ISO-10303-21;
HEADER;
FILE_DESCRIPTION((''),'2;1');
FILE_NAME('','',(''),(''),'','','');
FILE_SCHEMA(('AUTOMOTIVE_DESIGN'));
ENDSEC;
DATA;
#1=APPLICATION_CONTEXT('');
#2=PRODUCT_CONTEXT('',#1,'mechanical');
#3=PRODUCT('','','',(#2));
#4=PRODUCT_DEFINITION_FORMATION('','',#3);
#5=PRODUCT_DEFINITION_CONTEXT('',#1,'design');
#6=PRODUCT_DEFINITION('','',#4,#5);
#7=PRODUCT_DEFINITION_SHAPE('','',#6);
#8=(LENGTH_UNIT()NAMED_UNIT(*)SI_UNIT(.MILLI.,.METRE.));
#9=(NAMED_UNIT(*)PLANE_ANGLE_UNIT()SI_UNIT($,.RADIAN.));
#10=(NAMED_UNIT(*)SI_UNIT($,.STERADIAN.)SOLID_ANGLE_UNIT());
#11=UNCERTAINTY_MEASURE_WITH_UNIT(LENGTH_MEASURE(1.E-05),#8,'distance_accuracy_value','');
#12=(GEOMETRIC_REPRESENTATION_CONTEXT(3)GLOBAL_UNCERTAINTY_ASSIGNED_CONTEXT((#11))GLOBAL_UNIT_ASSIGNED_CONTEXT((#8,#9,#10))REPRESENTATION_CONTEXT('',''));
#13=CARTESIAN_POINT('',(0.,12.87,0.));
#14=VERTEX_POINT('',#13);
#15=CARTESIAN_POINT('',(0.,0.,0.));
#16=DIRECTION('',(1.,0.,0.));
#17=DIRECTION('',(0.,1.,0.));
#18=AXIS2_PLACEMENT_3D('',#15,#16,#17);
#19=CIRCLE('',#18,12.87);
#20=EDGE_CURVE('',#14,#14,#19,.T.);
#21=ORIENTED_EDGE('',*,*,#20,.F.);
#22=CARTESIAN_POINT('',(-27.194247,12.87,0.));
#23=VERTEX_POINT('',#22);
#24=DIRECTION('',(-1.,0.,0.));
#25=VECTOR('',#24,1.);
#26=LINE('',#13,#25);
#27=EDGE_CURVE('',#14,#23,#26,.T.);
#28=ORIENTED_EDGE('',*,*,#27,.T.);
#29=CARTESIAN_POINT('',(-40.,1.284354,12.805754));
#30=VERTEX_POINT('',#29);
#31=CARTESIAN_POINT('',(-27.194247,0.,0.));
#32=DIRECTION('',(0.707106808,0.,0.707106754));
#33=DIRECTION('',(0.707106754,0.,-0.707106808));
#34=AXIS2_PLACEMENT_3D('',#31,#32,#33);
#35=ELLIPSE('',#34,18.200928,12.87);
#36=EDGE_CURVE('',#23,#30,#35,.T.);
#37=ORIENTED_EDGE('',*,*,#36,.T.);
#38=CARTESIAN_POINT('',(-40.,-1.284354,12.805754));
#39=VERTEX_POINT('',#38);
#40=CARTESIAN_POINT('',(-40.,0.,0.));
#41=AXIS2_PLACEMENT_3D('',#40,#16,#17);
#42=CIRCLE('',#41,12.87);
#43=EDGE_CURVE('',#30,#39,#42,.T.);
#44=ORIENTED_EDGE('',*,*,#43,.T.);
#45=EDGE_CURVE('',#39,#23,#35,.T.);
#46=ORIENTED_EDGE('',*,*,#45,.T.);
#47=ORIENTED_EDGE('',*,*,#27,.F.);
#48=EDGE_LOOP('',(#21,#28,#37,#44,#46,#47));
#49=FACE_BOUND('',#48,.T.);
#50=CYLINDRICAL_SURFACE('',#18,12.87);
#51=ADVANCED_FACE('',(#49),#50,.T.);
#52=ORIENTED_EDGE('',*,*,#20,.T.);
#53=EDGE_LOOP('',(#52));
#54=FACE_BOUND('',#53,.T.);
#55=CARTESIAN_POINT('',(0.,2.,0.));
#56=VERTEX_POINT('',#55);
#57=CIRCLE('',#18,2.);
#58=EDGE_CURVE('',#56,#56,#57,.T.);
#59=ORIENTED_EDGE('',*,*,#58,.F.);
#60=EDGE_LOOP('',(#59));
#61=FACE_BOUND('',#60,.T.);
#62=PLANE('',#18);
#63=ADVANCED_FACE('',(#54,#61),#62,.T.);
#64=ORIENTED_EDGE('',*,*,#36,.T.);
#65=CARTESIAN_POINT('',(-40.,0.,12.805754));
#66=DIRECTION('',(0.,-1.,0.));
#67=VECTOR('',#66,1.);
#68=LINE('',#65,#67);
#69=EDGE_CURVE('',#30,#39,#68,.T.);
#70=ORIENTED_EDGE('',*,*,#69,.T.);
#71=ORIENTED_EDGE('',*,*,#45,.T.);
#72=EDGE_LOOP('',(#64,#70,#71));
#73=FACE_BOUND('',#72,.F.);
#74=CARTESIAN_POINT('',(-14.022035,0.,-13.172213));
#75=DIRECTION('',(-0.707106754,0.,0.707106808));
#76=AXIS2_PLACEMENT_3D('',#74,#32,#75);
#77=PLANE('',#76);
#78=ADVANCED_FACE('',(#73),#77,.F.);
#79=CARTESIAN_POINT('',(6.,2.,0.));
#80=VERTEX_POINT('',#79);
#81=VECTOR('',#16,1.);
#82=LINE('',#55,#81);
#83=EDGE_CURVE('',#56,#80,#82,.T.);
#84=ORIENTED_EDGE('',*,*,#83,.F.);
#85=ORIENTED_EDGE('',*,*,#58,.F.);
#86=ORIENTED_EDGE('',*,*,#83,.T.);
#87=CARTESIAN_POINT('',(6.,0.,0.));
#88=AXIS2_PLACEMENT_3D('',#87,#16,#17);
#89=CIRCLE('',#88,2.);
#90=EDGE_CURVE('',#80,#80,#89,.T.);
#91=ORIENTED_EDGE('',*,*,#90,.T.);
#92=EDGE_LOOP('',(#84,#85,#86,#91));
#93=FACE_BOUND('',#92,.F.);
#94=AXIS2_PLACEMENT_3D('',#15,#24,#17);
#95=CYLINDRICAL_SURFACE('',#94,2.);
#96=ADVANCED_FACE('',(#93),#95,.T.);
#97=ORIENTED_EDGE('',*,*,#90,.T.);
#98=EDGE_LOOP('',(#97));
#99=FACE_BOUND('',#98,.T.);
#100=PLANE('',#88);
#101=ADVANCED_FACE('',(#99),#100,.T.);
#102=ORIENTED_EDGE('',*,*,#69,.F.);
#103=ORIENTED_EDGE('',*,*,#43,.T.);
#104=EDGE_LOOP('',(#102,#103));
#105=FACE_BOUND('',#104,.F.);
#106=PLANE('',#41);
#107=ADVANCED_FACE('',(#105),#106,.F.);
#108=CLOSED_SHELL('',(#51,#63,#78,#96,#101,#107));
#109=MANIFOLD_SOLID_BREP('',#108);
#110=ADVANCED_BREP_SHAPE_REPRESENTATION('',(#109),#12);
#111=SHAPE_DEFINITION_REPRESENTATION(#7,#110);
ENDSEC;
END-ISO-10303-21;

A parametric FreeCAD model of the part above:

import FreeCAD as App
import Part
import Sketcher
from FreeCAD import Vector
Q = App.Units.Quantity


def add_polygon(sketch, points):
    """Adds a closed chain of lines whose ends are joined by coincident constraints."""
    first, n = sketch.GeometryCount, len(points)
    for a, b in zip(points, points[1:] + points[:1]):
        sketch.addGeometry(Part.LineSegment(App.Vector(*a, 0), App.Vector(*b, 0)), False)
    for i in range(n):
        sketch.addConstraint(Sketcher.Constraint("Coincident", first + i, 2, first + (i + 1) % n, 1))

doc = App.newDocument("Part")
body = doc.addObject("PartDesign::Body", "Body")

# Sketch on YZ plane
sketch1 = doc.addObject("Sketcher::SketchObject", "Sketch")
body.addObject(sketch1)
sketch1.AttachmentSupport = (doc.YZ_Plane, [""])
sketch1.MapMode = "FlatFace"
sketch1.addGeometry(Part.Circle(Vector(0, 0, 0), Vector(0, 0, 1), 13), False)
sketch1.addConstraint([
    Sketcher.Constraint("Coincident", 0, 3, -1, 1),
    Sketcher.Constraint("Diameter", 0, 25.74),
])
pad1 = doc.addObject("PartDesign::Pad", "Pad")
body.addObject(pad1)
pad1.Profile = sketch1
pad1.Length = 40
pad1.Reversed = True

# Sketch on XZ plane
sketch2 = doc.addObject("Sketcher::SketchObject", "Sketch001")
body.addObject(sketch2)
sketch2.AttachmentSupport = (doc.XZ_Plane, [""])
sketch2.MapMode = "FlatFace"
add_polygon(sketch2, [(-14, -13), (-40, 13), (-40, -13)])  # lines 0-2
sketch2.addConstraint([
    Sketcher.Constraint("Vertical", 1),
    Sketcher.Constraint("Horizontal", 2),
    Sketcher.Constraint("Angle", 0, Q("134.999998 deg")),
    Sketcher.Constraint("DistanceX", 2, 1, 2, 2, 26.06115),
    Sketcher.Constraint("DistanceY", -1, 1, 0, 2, 12.888939),
    Sketcher.Constraint("DistanceX", 0, 2, -1, 1, 40.083185),
])
pocket1 = doc.addObject("PartDesign::Pocket", "Pocket")
body.addObject(pocket1)
pocket1.Profile = sketch2
pocket1.Length = 30
pocket1.Midplane = True

# Sketch on YZ plane
sketch3 = doc.addObject("Sketcher::SketchObject", "Sketch002")
body.addObject(sketch3)
sketch3.AttachmentSupport = (doc.YZ_Plane, [""])
sketch3.MapMode = "FlatFace"
sketch3.addGeometry(Part.Circle(Vector(0, 0, 0), Vector(0, 0, 1), 2), False)
sketch3.addConstraint([
    Sketcher.Constraint("Coincident", 0, 3, -1, 1),
    Sketcher.Constraint("Diameter", 0, 4.0),
])
pad2 = doc.addObject("PartDesign::Pad", "Pad001")
body.addObject(pad2)
pad2.Profile = sketch3
pad2.Length = 6

doc.recompute()
